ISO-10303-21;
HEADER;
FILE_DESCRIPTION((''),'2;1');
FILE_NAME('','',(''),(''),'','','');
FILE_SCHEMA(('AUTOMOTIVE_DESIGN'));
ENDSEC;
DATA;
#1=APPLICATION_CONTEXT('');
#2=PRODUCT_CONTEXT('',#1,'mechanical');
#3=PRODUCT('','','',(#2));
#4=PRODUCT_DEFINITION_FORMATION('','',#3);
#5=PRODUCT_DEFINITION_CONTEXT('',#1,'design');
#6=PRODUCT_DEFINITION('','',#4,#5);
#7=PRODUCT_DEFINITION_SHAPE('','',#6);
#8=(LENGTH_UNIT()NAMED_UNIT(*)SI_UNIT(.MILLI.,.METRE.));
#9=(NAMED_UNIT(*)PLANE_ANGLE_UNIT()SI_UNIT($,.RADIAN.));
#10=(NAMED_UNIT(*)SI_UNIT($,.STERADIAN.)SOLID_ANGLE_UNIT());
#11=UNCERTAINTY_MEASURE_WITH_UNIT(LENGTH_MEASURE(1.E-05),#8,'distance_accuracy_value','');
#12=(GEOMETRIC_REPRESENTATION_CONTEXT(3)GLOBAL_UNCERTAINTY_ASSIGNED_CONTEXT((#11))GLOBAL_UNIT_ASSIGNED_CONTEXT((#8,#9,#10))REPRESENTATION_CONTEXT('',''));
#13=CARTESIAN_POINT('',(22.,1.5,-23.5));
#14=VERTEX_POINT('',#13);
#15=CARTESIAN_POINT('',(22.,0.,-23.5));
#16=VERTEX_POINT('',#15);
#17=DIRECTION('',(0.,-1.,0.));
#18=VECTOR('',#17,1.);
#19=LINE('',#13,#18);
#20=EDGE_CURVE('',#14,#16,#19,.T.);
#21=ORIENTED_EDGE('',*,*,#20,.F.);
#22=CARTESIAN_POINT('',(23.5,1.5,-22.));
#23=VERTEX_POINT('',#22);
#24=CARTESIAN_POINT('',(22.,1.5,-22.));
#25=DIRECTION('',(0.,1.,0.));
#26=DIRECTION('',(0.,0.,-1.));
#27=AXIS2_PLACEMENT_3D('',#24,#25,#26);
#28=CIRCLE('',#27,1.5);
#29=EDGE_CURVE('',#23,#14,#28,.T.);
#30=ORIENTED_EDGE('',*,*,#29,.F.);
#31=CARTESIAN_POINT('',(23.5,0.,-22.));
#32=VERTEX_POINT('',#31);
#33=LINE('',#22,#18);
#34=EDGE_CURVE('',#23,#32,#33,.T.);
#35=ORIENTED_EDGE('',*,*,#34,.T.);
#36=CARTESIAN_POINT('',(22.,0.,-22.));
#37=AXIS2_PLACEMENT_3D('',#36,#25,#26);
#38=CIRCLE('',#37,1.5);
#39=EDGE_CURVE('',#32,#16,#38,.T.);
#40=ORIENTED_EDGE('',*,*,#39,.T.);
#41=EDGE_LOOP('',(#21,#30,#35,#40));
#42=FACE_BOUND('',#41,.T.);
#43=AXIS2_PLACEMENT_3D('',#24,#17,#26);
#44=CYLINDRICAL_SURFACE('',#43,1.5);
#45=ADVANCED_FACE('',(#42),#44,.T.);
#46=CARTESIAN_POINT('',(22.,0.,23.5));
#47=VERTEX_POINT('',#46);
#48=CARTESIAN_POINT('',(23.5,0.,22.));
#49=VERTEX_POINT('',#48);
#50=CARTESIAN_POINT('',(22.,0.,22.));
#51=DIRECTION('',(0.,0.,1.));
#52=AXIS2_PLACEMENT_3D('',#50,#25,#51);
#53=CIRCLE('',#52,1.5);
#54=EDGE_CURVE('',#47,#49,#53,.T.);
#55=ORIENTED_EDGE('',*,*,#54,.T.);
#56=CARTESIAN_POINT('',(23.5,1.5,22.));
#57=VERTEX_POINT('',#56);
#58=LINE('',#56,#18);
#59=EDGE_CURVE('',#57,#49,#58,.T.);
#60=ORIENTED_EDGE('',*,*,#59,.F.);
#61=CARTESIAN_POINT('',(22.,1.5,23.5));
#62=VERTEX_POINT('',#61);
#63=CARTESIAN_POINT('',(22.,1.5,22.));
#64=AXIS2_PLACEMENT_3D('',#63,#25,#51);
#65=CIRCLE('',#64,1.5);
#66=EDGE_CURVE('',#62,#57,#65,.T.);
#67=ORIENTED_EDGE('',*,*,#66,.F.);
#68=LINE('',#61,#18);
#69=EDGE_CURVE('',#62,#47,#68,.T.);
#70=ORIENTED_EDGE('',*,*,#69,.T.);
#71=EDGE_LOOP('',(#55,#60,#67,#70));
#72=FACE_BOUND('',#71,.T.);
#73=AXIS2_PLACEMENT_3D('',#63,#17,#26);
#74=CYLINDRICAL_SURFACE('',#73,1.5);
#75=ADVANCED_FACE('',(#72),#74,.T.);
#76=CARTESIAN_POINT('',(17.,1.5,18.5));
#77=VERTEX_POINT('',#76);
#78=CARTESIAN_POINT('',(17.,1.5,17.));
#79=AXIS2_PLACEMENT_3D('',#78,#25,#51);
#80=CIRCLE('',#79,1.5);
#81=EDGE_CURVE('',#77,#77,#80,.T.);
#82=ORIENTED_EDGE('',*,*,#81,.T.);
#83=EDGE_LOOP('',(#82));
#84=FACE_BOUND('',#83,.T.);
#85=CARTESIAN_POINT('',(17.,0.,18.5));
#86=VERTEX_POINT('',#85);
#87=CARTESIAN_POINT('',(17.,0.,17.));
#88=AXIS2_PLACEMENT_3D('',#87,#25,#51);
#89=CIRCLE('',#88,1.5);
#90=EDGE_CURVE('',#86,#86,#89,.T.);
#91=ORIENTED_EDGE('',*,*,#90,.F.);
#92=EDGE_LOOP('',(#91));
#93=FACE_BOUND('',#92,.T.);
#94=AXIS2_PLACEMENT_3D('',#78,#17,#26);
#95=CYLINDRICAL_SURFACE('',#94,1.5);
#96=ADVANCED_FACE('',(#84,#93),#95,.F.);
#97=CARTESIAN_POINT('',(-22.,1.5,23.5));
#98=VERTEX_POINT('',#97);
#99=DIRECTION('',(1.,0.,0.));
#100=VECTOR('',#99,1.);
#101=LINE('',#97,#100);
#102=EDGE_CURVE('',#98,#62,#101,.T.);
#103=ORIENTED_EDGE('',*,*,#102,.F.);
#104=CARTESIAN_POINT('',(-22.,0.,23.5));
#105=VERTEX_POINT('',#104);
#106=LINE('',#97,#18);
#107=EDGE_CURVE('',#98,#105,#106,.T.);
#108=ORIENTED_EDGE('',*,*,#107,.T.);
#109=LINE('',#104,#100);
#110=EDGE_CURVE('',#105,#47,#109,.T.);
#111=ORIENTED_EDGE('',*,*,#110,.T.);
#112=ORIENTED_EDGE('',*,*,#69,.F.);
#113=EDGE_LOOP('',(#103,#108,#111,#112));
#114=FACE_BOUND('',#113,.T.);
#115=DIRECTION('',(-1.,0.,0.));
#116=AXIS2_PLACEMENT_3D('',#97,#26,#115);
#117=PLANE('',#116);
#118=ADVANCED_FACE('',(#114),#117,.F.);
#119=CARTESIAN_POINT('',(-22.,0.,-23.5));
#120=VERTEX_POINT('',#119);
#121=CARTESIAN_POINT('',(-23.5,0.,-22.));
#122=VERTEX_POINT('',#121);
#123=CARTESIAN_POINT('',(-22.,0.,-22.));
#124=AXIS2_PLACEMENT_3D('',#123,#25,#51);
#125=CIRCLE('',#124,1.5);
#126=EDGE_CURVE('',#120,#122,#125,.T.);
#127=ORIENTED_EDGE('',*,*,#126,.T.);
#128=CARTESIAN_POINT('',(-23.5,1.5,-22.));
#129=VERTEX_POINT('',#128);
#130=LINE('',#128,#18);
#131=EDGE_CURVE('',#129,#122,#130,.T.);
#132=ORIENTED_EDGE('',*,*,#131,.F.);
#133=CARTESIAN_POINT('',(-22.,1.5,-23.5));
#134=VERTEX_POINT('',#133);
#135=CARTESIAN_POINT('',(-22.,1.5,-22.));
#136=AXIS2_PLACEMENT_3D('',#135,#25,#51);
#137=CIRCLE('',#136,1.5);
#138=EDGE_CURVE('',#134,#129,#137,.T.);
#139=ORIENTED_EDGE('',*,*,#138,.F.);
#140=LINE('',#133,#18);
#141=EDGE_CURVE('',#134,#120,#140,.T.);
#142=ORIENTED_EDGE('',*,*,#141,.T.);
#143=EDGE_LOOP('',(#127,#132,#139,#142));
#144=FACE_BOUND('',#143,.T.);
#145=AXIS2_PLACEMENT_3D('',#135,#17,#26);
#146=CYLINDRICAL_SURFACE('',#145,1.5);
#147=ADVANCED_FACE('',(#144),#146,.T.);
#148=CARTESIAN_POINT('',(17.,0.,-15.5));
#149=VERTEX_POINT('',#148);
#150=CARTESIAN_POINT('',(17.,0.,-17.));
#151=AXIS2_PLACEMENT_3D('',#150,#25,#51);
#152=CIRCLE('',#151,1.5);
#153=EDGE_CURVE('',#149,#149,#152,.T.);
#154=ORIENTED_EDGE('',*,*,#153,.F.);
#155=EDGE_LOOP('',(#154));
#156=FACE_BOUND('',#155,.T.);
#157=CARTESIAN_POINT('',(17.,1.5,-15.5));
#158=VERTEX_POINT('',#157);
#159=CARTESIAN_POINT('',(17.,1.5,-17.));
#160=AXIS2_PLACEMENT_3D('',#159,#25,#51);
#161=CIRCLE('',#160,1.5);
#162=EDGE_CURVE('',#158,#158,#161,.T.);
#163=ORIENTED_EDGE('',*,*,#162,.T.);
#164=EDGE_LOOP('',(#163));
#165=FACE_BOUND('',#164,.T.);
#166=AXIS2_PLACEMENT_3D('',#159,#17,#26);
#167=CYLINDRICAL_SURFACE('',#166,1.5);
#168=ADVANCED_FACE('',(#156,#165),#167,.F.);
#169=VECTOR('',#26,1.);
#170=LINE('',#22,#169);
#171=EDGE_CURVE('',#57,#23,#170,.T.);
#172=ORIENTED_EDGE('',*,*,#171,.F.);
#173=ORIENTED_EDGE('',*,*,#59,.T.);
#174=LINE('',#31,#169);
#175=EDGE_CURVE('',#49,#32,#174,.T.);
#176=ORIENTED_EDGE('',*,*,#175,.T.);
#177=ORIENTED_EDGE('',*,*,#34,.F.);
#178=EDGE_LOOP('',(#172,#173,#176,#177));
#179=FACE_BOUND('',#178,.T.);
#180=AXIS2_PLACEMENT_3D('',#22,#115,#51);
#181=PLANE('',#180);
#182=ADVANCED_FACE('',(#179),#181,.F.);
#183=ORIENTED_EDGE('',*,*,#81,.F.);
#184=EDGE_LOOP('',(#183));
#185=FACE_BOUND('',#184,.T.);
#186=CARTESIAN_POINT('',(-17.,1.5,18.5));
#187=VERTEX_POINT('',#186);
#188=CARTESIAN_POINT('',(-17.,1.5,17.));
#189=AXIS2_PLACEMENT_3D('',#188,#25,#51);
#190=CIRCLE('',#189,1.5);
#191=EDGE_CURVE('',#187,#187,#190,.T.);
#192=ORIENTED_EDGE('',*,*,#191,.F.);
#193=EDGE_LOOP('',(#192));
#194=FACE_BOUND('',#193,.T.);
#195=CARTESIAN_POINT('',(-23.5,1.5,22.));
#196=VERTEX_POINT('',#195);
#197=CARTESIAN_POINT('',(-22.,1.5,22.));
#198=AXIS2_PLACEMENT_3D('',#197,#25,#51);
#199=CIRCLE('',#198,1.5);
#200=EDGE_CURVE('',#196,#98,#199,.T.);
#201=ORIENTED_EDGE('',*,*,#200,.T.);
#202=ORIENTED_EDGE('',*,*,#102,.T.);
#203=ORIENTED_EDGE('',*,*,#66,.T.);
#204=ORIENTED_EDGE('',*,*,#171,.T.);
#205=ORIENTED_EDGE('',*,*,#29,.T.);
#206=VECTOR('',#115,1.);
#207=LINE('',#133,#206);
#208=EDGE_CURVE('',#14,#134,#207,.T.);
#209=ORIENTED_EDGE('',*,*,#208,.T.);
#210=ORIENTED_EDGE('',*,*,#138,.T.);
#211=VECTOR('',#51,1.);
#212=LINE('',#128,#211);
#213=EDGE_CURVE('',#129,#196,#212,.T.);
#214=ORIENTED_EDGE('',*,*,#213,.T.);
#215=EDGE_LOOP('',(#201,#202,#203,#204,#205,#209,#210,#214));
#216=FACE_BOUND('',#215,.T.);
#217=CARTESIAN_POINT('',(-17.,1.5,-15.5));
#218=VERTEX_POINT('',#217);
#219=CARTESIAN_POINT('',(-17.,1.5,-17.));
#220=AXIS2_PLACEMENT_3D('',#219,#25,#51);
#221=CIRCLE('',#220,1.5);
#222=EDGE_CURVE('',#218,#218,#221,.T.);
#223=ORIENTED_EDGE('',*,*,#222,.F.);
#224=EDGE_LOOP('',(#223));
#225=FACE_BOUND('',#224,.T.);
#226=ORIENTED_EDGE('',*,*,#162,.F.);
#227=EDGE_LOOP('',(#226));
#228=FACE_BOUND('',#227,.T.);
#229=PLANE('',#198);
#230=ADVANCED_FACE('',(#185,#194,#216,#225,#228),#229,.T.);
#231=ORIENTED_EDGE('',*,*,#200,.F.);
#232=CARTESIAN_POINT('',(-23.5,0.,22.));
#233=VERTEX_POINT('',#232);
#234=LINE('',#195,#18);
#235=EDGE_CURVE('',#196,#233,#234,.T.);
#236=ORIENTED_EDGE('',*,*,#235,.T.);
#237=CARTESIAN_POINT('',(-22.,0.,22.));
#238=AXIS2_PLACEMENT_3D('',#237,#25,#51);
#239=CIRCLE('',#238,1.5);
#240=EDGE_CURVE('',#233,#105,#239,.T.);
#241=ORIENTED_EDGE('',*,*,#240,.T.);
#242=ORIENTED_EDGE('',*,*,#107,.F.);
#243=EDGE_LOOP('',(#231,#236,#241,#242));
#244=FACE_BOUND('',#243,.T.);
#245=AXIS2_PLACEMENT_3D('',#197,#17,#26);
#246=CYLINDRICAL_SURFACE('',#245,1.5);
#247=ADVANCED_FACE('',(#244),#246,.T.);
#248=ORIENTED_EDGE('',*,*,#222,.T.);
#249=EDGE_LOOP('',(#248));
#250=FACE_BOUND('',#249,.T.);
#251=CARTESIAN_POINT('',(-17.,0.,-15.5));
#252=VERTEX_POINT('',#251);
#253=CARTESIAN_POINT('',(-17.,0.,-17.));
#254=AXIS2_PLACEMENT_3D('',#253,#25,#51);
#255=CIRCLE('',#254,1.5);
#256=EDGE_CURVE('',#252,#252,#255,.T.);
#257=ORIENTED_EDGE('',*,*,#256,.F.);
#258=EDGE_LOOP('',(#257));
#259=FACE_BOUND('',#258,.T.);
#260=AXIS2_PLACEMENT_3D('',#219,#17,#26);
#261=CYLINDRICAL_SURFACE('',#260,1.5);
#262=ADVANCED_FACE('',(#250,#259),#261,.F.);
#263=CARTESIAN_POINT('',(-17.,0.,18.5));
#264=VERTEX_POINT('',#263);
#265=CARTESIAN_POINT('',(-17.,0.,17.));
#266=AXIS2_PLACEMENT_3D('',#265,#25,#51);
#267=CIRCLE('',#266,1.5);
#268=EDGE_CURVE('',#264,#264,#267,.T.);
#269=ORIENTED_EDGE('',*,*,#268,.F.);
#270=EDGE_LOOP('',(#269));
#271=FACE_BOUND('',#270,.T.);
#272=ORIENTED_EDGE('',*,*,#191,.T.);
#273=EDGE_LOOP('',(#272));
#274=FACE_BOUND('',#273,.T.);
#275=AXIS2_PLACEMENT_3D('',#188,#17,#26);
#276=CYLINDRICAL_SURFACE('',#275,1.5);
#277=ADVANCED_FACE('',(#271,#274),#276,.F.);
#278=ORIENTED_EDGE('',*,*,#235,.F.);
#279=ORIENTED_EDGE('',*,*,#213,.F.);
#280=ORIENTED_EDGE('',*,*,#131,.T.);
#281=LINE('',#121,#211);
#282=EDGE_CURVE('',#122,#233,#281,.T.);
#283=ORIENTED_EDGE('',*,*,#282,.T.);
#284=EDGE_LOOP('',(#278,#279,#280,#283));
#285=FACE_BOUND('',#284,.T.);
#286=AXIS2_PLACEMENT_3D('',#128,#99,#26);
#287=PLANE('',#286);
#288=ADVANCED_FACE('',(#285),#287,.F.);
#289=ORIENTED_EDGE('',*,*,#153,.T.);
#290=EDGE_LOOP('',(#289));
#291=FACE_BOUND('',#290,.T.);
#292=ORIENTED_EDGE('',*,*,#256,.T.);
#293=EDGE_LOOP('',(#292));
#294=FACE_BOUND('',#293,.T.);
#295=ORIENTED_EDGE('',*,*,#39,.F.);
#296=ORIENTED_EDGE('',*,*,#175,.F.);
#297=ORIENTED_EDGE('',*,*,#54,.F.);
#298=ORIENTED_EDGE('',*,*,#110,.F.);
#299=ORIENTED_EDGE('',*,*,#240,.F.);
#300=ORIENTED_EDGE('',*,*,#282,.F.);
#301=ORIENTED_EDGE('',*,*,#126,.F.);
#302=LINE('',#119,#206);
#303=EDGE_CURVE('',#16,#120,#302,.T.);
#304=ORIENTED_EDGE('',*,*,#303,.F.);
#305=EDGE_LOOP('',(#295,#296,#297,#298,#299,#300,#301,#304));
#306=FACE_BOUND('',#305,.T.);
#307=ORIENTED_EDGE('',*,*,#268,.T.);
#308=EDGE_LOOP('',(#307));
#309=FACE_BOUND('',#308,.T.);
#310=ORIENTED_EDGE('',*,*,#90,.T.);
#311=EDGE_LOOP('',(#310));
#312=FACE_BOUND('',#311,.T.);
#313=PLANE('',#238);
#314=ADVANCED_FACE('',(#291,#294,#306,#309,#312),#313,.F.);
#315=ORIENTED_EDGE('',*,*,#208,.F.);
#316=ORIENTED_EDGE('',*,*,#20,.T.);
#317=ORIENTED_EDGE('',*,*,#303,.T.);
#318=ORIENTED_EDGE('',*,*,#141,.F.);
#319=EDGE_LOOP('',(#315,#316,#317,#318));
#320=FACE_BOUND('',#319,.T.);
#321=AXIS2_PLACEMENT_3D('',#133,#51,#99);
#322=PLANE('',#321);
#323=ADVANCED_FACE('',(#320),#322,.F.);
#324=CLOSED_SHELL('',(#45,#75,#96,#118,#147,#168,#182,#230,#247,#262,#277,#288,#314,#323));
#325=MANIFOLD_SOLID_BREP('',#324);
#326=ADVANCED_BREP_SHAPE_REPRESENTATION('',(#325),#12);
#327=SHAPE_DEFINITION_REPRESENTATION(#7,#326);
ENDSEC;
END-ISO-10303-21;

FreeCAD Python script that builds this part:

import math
import FreeCAD as App
import Part
import Sketcher
Q = App.Units.Quantity

doc = App.newDocument("Part")
body = doc.addObject("PartDesign::Body", "Body")

# Sketch on XZ plane
sketch1 = body.newObject("Sketcher::SketchObject", "Sketch")
sketch1.AttachmentSupport = (doc.getObject("XZ_Plane"), [""])
sketch1.MapMode = "FlatFace"
sketch1.addGeometry(Part.LineSegment(App.Vector(22, -23.5, 0), App.Vector(-22, -23.5, 0)), False)
sketch1.addGeometry(Part.ArcOfCircle(Part.Circle(App.Vector(-22, -22, 0), App.Vector(0, 0, 1), 1.5), math.radians(180), math.radians(270)), False)
sketch1.addGeometry(Part.LineSegment(App.Vector(-23.5, -22, 0), App.Vector(-23.5, 22, 0)), False)
sketch1.addGeometry(Part.ArcOfCircle(Part.Circle(App.Vector(-22, 22, 0), App.Vector(0, 0, 1), 1.5), math.radians(90), math.radians(180)), False)
sketch1.addGeometry(Part.LineSegment(App.Vector(-22, 23.5, 0), App.Vector(22, 23.5, 0)), False)
sketch1.addGeometry(Part.ArcOfCircle(Part.Circle(App.Vector(22, 22, 0), App.Vector(0, 0, 1), 1.5), math.radians(0), math.radians(90)), False)
sketch1.addGeometry(Part.LineSegment(App.Vector(23.5, 22, 0), App.Vector(23.5, -22, 0)), False)
sketch1.addGeometry(Part.ArcOfCircle(Part.Circle(App.Vector(22, -22, 0), App.Vector(0, 0, 1), 1.5), math.radians(-90), math.radians(0)), False)
sketch1.addGeometry(Part.Circle(App.Vector(17, 17, 0), App.Vector(0, 0, 1), 1.5), False)
sketch1.addGeometry(Part.Circle(App.Vector(-17, 17, 0), App.Vector(0, 0, 1), 1.5), False)
sketch1.addGeometry(Part.Circle(App.Vector(17, -17, 0), App.Vector(0, 0, 1), 1.5), False)
sketch1.addGeometry(Part.Circle(App.Vector(-17, -17, 0), App.Vector(0, 0, 1), 1.5), False)
sketch1.addConstraint(Sketcher.Constraint("Tangent", 0, 2, 1, 2))
sketch1.addConstraint(Sketcher.Constraint("Tangent", 1, 1, 2, 1))
sketch1.addConstraint(Sketcher.Constraint("Tangent", 2, 2, 3, 2))
sketch1.addConstraint(Sketcher.Constraint("Tangent", 3, 1, 4, 1))
sketch1.addConstraint(Sketcher.Constraint("Tangent", 4, 2, 5, 2))
sketch1.addConstraint(Sketcher.Constraint("Tangent", 5, 1, 6, 1))
sketch1.addConstraint(Sketcher.Constraint("Tangent", 6, 2, 7, 2))
sketch1.addConstraint(Sketcher.Constraint("Tangent", 7, 1, 0, 1))
sketch1.addConstraint(Sketcher.Constraint("Horizontal", 0))
sketch1.addConstraint(Sketcher.Constraint("Vertical", 2))
sketch1.addConstraint(Sketcher.Constraint("Horizontal", 4))
sketch1.addConstraint(Sketcher.Constraint("Vertical", 6))
sketch1.addConstraint(Sketcher.Constraint("Equal", 1, 3))
sketch1.addConstraint(Sketcher.Constraint("Equal", 3, 5))
sketch1.addConstraint(Sketcher.Constraint("Equal", 5, 7))
sketch1.addConstraint(Sketcher.Constraint("Equal", 7, 8))
sketch1.addConstraint(Sketcher.Constraint("Equal", 8, 9))
sketch1.addConstraint(Sketcher.Constraint("Equal", 9, 10))
sketch1.addConstraint(Sketcher.Constraint("Equal", 10, 11))
sketch1.addConstraint(Sketcher.Constraint("Symmetric", 1, 3, 5, 3, -1, 1))
sketch1.addConstraint(Sketcher.Constraint("Symmetric", 9, 3, 10, 3, -1, 1))
sketch1.addConstraint(Sketcher.Constraint("Symmetric", 8, 3, 11, 3, -1, 1))
sketch1.addConstraint(Sketcher.Constraint("Symmetric", 8, 3, 9, 3, -2))
sketch1.addConstraint(Sketcher.Constraint("Equal", 4, 2))
sketch1.addConstraint(Sketcher.Constraint("Diameter", 8, Q("3 mm")))
sketch1.addConstraint(Sketcher.Constraint("DistanceX", 0, 2, 0, 1, Q("44 mm")))
sketch1.addConstraint(Sketcher.Constraint("DistanceX", -1, 1, 8, 3, Q("17 mm")))
sketch1.addConstraint(Sketcher.Constraint("DistanceY", -1, 1, 8, 3, Q("17 mm")))
pad1 = body.newObject("PartDesign::Pad", "Pad")
pad1.Profile = sketch1
pad1.Length = 1.5
pad1.Reversed = True

doc.recompute()
